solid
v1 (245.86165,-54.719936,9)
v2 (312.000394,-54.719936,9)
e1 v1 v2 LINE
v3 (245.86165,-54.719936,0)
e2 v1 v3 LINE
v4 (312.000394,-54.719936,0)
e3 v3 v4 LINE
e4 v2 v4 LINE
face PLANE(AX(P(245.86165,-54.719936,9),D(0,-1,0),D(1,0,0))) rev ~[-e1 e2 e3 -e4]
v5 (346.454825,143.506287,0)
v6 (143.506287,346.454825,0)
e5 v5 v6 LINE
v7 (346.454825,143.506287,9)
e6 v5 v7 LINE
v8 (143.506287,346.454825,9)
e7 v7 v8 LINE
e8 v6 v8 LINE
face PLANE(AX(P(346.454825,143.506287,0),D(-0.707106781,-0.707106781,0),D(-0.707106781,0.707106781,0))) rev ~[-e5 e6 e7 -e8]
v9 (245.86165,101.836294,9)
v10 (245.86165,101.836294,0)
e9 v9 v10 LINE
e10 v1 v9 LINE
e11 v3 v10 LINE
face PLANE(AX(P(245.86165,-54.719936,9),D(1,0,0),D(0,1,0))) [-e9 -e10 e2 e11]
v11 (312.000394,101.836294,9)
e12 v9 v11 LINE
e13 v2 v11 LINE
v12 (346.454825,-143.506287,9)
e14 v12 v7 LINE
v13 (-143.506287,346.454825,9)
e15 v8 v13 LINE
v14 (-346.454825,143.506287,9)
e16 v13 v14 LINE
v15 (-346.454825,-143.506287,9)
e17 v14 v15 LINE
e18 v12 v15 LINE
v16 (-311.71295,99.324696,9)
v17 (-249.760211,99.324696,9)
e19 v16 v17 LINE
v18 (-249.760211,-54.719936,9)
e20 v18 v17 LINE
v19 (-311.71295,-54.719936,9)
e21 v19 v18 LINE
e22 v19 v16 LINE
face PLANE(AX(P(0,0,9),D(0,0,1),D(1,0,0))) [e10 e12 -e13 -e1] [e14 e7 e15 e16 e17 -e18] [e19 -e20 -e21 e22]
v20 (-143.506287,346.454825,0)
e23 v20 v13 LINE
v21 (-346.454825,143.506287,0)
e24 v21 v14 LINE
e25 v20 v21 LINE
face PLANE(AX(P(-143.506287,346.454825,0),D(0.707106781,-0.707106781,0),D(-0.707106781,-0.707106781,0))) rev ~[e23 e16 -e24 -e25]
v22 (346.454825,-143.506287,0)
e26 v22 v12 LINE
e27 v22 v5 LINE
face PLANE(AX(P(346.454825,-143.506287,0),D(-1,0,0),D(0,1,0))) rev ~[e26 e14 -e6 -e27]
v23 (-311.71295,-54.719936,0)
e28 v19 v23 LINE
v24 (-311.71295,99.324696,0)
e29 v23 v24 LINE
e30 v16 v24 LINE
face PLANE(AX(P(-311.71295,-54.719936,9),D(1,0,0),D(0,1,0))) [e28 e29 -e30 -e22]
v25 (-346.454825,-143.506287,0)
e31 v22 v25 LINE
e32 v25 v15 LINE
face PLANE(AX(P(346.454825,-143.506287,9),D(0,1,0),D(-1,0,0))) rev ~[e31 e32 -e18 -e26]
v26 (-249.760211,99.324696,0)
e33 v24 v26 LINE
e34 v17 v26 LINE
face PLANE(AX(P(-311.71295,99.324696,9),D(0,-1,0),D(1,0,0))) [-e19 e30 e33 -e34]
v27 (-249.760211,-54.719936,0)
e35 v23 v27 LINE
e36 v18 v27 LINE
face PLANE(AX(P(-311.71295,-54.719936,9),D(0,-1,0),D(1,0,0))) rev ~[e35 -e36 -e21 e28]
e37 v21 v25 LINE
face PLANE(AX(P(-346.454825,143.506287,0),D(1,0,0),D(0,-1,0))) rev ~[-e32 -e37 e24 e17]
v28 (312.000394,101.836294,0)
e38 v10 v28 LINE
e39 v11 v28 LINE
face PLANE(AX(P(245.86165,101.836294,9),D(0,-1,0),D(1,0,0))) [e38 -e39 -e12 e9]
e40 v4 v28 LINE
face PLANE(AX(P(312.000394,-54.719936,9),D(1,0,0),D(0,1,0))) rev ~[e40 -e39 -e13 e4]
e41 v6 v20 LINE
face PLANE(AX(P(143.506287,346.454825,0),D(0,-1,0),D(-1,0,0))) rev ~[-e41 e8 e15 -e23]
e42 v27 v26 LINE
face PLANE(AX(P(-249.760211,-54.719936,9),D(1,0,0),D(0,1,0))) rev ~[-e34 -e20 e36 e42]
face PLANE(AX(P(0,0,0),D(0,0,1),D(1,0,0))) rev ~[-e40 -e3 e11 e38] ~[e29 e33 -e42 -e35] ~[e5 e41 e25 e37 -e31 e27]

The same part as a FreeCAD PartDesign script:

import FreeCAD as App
import Part
import Sketcher
Q = App.Units.Quantity

doc = App.newDocument("Part")
body = doc.addObject("PartDesign::Body", "Body")

sketch1 = doc.addObject("Sketcher::SketchObject", "Sketch")
body.addObject(sketch1)
sketch1.AttachmentSupport = (doc.XY_Plane, [""])
sketch1.MapMode = "FlatFace"
sketch1.addGeometry([
    Part.LineSegment(App.Vector(144, 346, 0), App.Vector(-144, 346, 0)),
    Part.LineSegment(App.Vector(-144, 346, 0), App.Vector(-346, 144, 0)),
    Part.LineSegment(App.Vector(-346, 144, 0), App.Vector(-346, -144, 0)),
    Part.LineSegment(App.Vector(-346, -144, 0), App.Vector(-144, -346, 0)),
    Part.LineSegment(App.Vector(-144, -346, 0), App.Vector(144, -346, 0)),
    Part.LineSegment(App.Vector(144, -346, 0), App.Vector(346, -144, 0)),
    Part.LineSegment(App.Vector(346, -144, 0), App.Vector(346, 144, 0)),
    Part.LineSegment(App.Vector(346, 144, 0), App.Vector(144, 346, 0)),
], False)
sketch1.addConstraint([
    Sketcher.Constraint("Coincident", 0, 2, 1, 1),
    Sketcher.Constraint("Coincident", 1, 2, 2, 1),
    Sketcher.Constraint("Coincident", 2, 2, 3, 1),
    Sketcher.Constraint("Coincident", 3, 2, 4, 1),
    Sketcher.Constraint("Coincident", 4, 2, 5, 1),
    Sketcher.Constraint("Coincident", 5, 2, 6, 1),
    Sketcher.Constraint("Coincident", 6, 2, 7, 1),
    Sketcher.Constraint("Coincident", 7, 2, 0, 1),
    Sketcher.Constraint("Horizontal", 0),
    Sketcher.Constraint("Vertical", 2),
    Sketcher.Constraint("Horizontal", 4),
    Sketcher.Constraint("Vertical", 6),
    Sketcher.Constraint("Symmetric", 0, 2, 4, 2, -1, 1),
    Sketcher.Constraint("Symmetric", 1, 2, 5, 2, -1, 1),
    Sketcher.Constraint("Perpendicular", 1, 3),
    Sketcher.Constraint("Perpendicular", 5, 7),
    Sketcher.Constraint("Horizontal", 2, 2, 5, 2),
    Sketcher.Constraint("Horizontal", 1, 2, 6, 2),
    Sketcher.Constraint("Vertical", 0, 2, 3, 2),
    Sketcher.Constraint("Equal", 4, 2),
    Sketcher.Constraint("DistanceX", 0, 2, 0, 1, Q("287.012574 mm")),
    Sketcher.Constraint("DistanceX", 1, 2, 0, 2, Q("202.948538 mm")),
])
pad1 = doc.addObject("PartDesign::Pad", "Pad")
body.addObject(pad1)
pad1.Profile = sketch1
pad1.Length = 9

sketch2 = doc.addObject("Sketcher::SketchObject", "Sketch001")
body.addObject(sketch2)
sketch2.AttachmentSupport = (doc.XY_Plane, [""])
sketch2.MapMode = "FlatFace"
sketch2.AttachmentOffset = App.Placement(App.Vector(0, 0, 9), App.Rotation())
sketch2.addGeometry([
    Part.LineSegment(App.Vector(346, -144, 0), App.Vector(-346, -144, 0)),
    Part.LineSegment(App.Vector(-346, -144, 0), App.Vector(-144, -346, 0)),
    Part.LineSegment(App.Vector(-144, -346, 0), App.Vector(144, -346, 0)),
    Part.LineSegment(App.Vector(144, -346, 0), App.Vector(346, -144, 0)),
], False)
sketch2.addConstraint([
    Sketcher.Constraint("Coincident", 0, 2, 1, 1),
    Sketcher.Constraint("Coincident", 1, 2, 2, 1),
    Sketcher.Constraint("Coincident", 2, 2, 3, 1),
    Sketcher.Constraint("Coincident", 3, 2, 0, 1),
    Sketcher.Constraint("Horizontal", 0),
    Sketcher.Constraint("Horizontal", 2),
    Sketcher.Constraint("Perpendicular", 1, 3),
    Sketcher.Constraint("Equal", 1, 3),
    Sketcher.Constraint("DistanceX", 0, 2, 0, 1, Q("692.90965 mm")),
    Sketcher.Constraint("DistanceX", 2, 1, 2, 2, Q("287.012574 mm")),
    Sketcher.Constraint("DistanceX", 0, 2, -1, 1, Q("346.454825 mm")),
    Sketcher.Constraint("DistanceY", 0, 2, -1, 1, Q("143.506287 mm")),
])
pocket1 = doc.addObject("PartDesign::Pocket", "Pocket")
body.addObject(pocket1)
pocket1.Profile = sketch2
pocket1.Type = "ThroughAll"

sketch3 = doc.addObject("Sketcher::SketchObject", "Sketch002")
body.addObject(sketch3)
sketch3.AttachmentSupport = (doc.XY_Plane, [""])
sketch3.MapMode = "FlatFace"
sketch3.AttachmentOffset = App.Placement(App.Vector(0, 0, 9), App.Rotation())
sketch3.addGeometry([
    Part.LineSegment(App.Vector(-312, 99, 0), App.Vector(-312, -55, 0)),
    Part.LineSegment(App.Vector(-312, -55, 0), App.Vector(-250, -55, 0)),
    Part.LineSegment(App.Vector(-250, -55, 0), App.Vector(-250, 99, 0)),
    Part.LineSegment(App.Vector(-250, 99, 0), App.Vector(-312, 99, 0)),
], False)
sketch3.addConstraint([
    Sketcher.Constraint("Coincident", 0, 2, 1, 1),
    Sketcher.Constraint("Coincident", 1, 2, 2, 1),
    Sketcher.Constraint("Coincident", 2, 2, 3, 1),
    Sketcher.Constraint("Coincident", 3, 2, 0, 1),
    Sketcher.Constraint("Vertical", 0),
    Sketcher.Constraint("Horizontal", 1),
    Sketcher.Constraint("Vertical", 2),
    Sketcher.Constraint("Horizontal", 3),
    Sketcher.Constraint("DistanceX", 1, 1, 1, 2, Q("61.952739 mm")),
    Sketcher.Constraint("DistanceY", 0, 2, 0, 1, Q("154.044632 mm")),
    Sketcher.Constraint("DistanceX", 0, 2, -1, 1, Q("311.71295 mm")),
    Sketcher.Constraint("DistanceY", 0, 2, -1, 1, Q("54.719936 mm")),
])
pocket2 = doc.addObject("PartDesign::Pocket", "Pocket001")
body.addObject(pocket2)
pocket2.Profile = sketch3
pocket2.Type = "ThroughAll"

sketch4 = doc.addObject("Sketcher::SketchObject", "Sketch003")
body.addObject(sketch4)
sketch4.AttachmentSupport = (doc.XY_Plane, [""])
sketch4.MapMode = "FlatFace"
sketch4.AttachmentOffset = App.Placement(App.Vector(0, 0, 9), App.Rotation())
sketch4.addGeometry([
    Part.LineSegment(App.Vector(246, 102, 0), App.Vector(246, -55, 0)),
    Part.LineSegment(App.Vector(246, -55, 0), App.Vector(312, -55, 0)),
    Part.LineSegment(App.Vector(312, -55, 0), App.Vector(312, 102, 0)),
    Part.LineSegment(App.Vector(312, 102, 0), App.Vector(246, 102, 0)),
], False)
sketch4.addConstraint([
    Sketcher.Constraint("Coincident", 0, 2, 1, 1),
    Sketcher.Constraint("Coincident", 1, 2, 2, 1),
    Sketcher.Constraint("Coincident", 2, 2, 3, 1),
    Sketcher.Constraint("Coincident", 3, 2, 0, 1),
    Sketcher.Constraint("Vertical", 0),
    Sketcher.Constraint("Horizontal", 1),
    Sketcher.Constraint("Vertical", 2),
    Sketcher.Constraint("Horizontal", 3),
    Sketcher.Constraint("DistanceY", 0, 2, 0, 1, Q("156.55623 mm")),
    Sketcher.Constraint("DistanceX", 1, 1, 1, 2, Q("66.138744 mm")),
    Sketcher.Constraint("DistanceX", -1, 1, 0, 2, Q("245.86165 mm")),
    Sketcher.Constraint("DistanceY", 0, 2, -1, 1, Q("54.719936 mm")),
])
pocket3 = doc.addObject("PartDesign::Pocket", "Pocket002")
body.addObject(pocket3)
pocket3.Profile = sketch4
pocket3.Type = "ThroughAll"

doc.recompute()
